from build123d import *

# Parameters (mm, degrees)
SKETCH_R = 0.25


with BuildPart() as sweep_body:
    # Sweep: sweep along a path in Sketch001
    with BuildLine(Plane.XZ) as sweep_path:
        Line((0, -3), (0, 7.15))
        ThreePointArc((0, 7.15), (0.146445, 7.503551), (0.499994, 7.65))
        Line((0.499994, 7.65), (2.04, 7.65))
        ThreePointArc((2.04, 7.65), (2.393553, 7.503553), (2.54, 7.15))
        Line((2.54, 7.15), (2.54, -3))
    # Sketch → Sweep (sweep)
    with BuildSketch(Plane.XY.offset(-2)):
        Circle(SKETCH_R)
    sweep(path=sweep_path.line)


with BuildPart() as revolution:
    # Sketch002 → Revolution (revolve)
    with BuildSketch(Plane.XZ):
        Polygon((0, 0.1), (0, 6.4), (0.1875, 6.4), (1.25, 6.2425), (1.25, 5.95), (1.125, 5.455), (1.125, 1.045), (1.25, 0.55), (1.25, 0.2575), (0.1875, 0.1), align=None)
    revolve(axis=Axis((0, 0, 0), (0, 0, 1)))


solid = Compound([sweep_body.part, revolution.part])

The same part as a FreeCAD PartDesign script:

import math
import FreeCAD as App
import Part
import Sketcher
from FreeCAD import Vector

doc = App.newDocument("Part")
body = doc.addObject("PartDesign::Body", "Body")

# Sketch on XY plane
sketch1 = body.newObject("Sketcher::SketchObject", "Sketch")
sketch1.AttachmentSupport = (doc.getObject("XY_Plane"), [""])
sketch1.MapMode = "FlatFace"
sketch1.AttachmentOffset = App.Placement(Vector(0, 0, -2), App.Rotation())
sketch1.addGeometry(Part.Circle(Vector(0, 0, 0), Vector(0, 0, 1), 0.25), False)
sketch1.addConstraint([
    Sketcher.Constraint("Coincident", 0, 3, -1, 1),
    Sketcher.Constraint("Diameter", 0, 0.5),
])

# Sketch on XZ plane
sketch2 = body.newObject("Sketcher::SketchObject", "Sketch001")
sketch2.AttachmentSupport = (doc.getObject("XZ_Plane"), [""])
sketch2.MapMode = "FlatFace"
sketch2.addGeometry([
    Part.LineSegment(Vector(0, -3, 0), Vector(0, 7.2, 0)),  # 0
    Part.ArcOfCircle(Part.Circle(Vector(0.5, 7.1, 0), Vector(0, 0, 1), 0.5), math.radians(90), math.radians(180)),  # 1
    Part.LineSegment(Vector(0.5, 7.7, 0), Vector(2, 7.7, 0)),  # 2
    Part.ArcOfCircle(Part.Circle(Vector(2, 7.1, 0), Vector(0, 0, 1), 0.5), math.radians(0), math.radians(90)),  # 3
    Part.LineSegment(Vector(2.5, 7.2, 0), Vector(2.5, -3, 0)),  # 4
], False)
sketch2.addConstraint([
    Sketcher.Constraint("Coincident", 0, 2, 1, 2),
    Sketcher.Constraint("Coincident", 1, 1, 2, 1),
    Sketcher.Constraint("Coincident", 2, 2, 3, 2),
    Sketcher.Constraint("Coincident", 3, 1, 4, 1),
    Sketcher.Constraint("Vertical", 0),
    Sketcher.Constraint("Horizontal", 2),
    Sketcher.Constraint("Vertical", 4),
    Sketcher.Constraint("Equal", 1, 3),
    Sketcher.Constraint("PointOnObject", 0, 1, -2),
    Sketcher.Constraint("Horizontal", 3, 3, 0, 2),
    Sketcher.Constraint("Horizontal", 0, 2, 3, 1),
    Sketcher.Constraint("Horizontal", 0, 1, 4, 2),
    Sketcher.Constraint("Vertical", 3, 3, 2, 2),
    Sketcher.Constraint("Radius", 1, 0.500001),
    Sketcher.Constraint("DistanceY", 0, 1, -1, 1, 3.0),
    Sketcher.Constraint("DistanceY", 0, 1, 0, 2, 10.15),
    Sketcher.Constraint("DistanceX", -1, 1, 3, 3, 2.039999),
    Sketcher.Constraint("DistanceX", 2, 1, 2, 2, 1.540006),
])
doc.recompute()

additivepipe = body.newObject("PartDesign::AdditivePipe", "AdditivePipe")
additivepipe.Profile = sketch1
additivepipe.Spine = (sketch2, ["Edge1", "Edge2", "Edge3", "Edge4", "Edge5"])
body2 = doc.addObject("PartDesign::Body", "Body001")

# Sketch on XZ plane
sketch3 = body2.newObject("Sketcher::SketchObject", "Sketch002")
sketch3.AttachmentSupport = (doc.getObject("XZ_Plane001"), [""])
sketch3.MapMode = "FlatFace"
sketch3.addGeometry([
    Part.LineSegment(Vector(0, 6.4, 0), Vector(0, 0.1, 0)),  # 0
    Part.LineSegment(Vector(0, 0.1, 0), Vector(0.19, 0.1, 0)),  # 1
    Part.LineSegment(Vector(0.19, 0.1, 0), Vector(1.25, 0.26, 0)),  # 2
    Part.LineSegment(Vector(1.25, 0.26, 0), Vector(1.25, 0.55, 0)),  # 3
    Part.LineSegment(Vector(1.25, 0.55, 0), Vector(1.12, 1.04, 0)),  # 4
    Part.LineSegment(Vector(1.12, 1.04, 0), Vector(1.12, 5.46, 0)),  # 5
    Part.LineSegment(Vector(1.12, 5.46, 0), Vector(1.25, 5.95, 0)),  # 6
    Part.LineSegment(Vector(1.25, 5.95, 0), Vector(1.25, 6.24, 0)),  # 7
    Part.LineSegment(Vector(1.25, 6.24, 0), Vector(0.19, 6.4, 0)),  # 8
    Part.LineSegment(Vector(0.19, 6.4, 0), Vector(0, 6.4, 0)),  # 9
], False)
sketch3.addConstraint([
    Sketcher.Constraint("Coincident", 0, 2, 1, 1),
    Sketcher.Constraint("Coincident", 1, 2, 2, 1),
    Sketcher.Constraint("Coincident", 2, 2, 3, 1),
    Sketcher.Constraint("Coincident", 3, 2, 4, 1),
    Sketcher.Constraint("Coincident", 4, 2, 5, 1),
    Sketcher.Constraint("Coincident", 5, 2, 6, 1),
    Sketcher.Constraint("Coincident", 6, 2, 7, 1),
    Sketcher.Constraint("Coincident", 7, 2, 8, 1),
    Sketcher.Constraint("Coincident", 8, 2, 9, 1),
    Sketcher.Constraint("Coincident", 9, 2, 0, 1),
    Sketcher.Constraint("Vertical", 0),
    Sketcher.Constraint("Horizontal", 1),
    Sketcher.Constraint("Vertical", 3),
    Sketcher.Constraint("Vertical", 5),
    Sketcher.Constraint("Vertical", 7),
    Sketcher.Constraint("Horizontal", 9),
    Sketcher.Constraint("PointOnObject", 0, 2, -2),
    Sketcher.Constraint("Vertical", 3, 2, 6, 2),
    Sketcher.Constraint("Vertical", 1, 2, 8, 2),
    Sketcher.Constraint("Equal", 3, 7),
    Sketcher.Constraint("Equal", 4, 6),
    Sketcher.Constraint("Equal", 2, 8),
    Sketcher.Constraint("DistanceY", 0, 2, 0, 1, 6.3),
    Sketcher.Constraint("DistanceY", 5, 1, 5, 2, 4.41),
    Sketcher.Constraint("DistanceY", -1, 1, 0, 2, 0.1),
    Sketcher.Constraint("DistanceY", 3, 2, 6, 2, 5.4),
    Sketcher.Constraint("DistanceX", -1, 1, 2, 2, 1.25),
    Sketcher.Constraint("DistanceX", 1, 1, 1, 2, 0.1875),
    Sketcher.Constraint("DistanceY", 3, 1, 3, 2, 0.2925),
    Sketcher.Constraint("DistanceX", -1, 1, 4, 2, 1.125),
])
revolution = body2.newObject("PartDesign::Revolution", "Revolution")
revolution.Profile = sketch3
revolution.ReferenceAxis = (sketch3, ["V_Axis"])
revolution.Angle = 360

doc.recompute()
